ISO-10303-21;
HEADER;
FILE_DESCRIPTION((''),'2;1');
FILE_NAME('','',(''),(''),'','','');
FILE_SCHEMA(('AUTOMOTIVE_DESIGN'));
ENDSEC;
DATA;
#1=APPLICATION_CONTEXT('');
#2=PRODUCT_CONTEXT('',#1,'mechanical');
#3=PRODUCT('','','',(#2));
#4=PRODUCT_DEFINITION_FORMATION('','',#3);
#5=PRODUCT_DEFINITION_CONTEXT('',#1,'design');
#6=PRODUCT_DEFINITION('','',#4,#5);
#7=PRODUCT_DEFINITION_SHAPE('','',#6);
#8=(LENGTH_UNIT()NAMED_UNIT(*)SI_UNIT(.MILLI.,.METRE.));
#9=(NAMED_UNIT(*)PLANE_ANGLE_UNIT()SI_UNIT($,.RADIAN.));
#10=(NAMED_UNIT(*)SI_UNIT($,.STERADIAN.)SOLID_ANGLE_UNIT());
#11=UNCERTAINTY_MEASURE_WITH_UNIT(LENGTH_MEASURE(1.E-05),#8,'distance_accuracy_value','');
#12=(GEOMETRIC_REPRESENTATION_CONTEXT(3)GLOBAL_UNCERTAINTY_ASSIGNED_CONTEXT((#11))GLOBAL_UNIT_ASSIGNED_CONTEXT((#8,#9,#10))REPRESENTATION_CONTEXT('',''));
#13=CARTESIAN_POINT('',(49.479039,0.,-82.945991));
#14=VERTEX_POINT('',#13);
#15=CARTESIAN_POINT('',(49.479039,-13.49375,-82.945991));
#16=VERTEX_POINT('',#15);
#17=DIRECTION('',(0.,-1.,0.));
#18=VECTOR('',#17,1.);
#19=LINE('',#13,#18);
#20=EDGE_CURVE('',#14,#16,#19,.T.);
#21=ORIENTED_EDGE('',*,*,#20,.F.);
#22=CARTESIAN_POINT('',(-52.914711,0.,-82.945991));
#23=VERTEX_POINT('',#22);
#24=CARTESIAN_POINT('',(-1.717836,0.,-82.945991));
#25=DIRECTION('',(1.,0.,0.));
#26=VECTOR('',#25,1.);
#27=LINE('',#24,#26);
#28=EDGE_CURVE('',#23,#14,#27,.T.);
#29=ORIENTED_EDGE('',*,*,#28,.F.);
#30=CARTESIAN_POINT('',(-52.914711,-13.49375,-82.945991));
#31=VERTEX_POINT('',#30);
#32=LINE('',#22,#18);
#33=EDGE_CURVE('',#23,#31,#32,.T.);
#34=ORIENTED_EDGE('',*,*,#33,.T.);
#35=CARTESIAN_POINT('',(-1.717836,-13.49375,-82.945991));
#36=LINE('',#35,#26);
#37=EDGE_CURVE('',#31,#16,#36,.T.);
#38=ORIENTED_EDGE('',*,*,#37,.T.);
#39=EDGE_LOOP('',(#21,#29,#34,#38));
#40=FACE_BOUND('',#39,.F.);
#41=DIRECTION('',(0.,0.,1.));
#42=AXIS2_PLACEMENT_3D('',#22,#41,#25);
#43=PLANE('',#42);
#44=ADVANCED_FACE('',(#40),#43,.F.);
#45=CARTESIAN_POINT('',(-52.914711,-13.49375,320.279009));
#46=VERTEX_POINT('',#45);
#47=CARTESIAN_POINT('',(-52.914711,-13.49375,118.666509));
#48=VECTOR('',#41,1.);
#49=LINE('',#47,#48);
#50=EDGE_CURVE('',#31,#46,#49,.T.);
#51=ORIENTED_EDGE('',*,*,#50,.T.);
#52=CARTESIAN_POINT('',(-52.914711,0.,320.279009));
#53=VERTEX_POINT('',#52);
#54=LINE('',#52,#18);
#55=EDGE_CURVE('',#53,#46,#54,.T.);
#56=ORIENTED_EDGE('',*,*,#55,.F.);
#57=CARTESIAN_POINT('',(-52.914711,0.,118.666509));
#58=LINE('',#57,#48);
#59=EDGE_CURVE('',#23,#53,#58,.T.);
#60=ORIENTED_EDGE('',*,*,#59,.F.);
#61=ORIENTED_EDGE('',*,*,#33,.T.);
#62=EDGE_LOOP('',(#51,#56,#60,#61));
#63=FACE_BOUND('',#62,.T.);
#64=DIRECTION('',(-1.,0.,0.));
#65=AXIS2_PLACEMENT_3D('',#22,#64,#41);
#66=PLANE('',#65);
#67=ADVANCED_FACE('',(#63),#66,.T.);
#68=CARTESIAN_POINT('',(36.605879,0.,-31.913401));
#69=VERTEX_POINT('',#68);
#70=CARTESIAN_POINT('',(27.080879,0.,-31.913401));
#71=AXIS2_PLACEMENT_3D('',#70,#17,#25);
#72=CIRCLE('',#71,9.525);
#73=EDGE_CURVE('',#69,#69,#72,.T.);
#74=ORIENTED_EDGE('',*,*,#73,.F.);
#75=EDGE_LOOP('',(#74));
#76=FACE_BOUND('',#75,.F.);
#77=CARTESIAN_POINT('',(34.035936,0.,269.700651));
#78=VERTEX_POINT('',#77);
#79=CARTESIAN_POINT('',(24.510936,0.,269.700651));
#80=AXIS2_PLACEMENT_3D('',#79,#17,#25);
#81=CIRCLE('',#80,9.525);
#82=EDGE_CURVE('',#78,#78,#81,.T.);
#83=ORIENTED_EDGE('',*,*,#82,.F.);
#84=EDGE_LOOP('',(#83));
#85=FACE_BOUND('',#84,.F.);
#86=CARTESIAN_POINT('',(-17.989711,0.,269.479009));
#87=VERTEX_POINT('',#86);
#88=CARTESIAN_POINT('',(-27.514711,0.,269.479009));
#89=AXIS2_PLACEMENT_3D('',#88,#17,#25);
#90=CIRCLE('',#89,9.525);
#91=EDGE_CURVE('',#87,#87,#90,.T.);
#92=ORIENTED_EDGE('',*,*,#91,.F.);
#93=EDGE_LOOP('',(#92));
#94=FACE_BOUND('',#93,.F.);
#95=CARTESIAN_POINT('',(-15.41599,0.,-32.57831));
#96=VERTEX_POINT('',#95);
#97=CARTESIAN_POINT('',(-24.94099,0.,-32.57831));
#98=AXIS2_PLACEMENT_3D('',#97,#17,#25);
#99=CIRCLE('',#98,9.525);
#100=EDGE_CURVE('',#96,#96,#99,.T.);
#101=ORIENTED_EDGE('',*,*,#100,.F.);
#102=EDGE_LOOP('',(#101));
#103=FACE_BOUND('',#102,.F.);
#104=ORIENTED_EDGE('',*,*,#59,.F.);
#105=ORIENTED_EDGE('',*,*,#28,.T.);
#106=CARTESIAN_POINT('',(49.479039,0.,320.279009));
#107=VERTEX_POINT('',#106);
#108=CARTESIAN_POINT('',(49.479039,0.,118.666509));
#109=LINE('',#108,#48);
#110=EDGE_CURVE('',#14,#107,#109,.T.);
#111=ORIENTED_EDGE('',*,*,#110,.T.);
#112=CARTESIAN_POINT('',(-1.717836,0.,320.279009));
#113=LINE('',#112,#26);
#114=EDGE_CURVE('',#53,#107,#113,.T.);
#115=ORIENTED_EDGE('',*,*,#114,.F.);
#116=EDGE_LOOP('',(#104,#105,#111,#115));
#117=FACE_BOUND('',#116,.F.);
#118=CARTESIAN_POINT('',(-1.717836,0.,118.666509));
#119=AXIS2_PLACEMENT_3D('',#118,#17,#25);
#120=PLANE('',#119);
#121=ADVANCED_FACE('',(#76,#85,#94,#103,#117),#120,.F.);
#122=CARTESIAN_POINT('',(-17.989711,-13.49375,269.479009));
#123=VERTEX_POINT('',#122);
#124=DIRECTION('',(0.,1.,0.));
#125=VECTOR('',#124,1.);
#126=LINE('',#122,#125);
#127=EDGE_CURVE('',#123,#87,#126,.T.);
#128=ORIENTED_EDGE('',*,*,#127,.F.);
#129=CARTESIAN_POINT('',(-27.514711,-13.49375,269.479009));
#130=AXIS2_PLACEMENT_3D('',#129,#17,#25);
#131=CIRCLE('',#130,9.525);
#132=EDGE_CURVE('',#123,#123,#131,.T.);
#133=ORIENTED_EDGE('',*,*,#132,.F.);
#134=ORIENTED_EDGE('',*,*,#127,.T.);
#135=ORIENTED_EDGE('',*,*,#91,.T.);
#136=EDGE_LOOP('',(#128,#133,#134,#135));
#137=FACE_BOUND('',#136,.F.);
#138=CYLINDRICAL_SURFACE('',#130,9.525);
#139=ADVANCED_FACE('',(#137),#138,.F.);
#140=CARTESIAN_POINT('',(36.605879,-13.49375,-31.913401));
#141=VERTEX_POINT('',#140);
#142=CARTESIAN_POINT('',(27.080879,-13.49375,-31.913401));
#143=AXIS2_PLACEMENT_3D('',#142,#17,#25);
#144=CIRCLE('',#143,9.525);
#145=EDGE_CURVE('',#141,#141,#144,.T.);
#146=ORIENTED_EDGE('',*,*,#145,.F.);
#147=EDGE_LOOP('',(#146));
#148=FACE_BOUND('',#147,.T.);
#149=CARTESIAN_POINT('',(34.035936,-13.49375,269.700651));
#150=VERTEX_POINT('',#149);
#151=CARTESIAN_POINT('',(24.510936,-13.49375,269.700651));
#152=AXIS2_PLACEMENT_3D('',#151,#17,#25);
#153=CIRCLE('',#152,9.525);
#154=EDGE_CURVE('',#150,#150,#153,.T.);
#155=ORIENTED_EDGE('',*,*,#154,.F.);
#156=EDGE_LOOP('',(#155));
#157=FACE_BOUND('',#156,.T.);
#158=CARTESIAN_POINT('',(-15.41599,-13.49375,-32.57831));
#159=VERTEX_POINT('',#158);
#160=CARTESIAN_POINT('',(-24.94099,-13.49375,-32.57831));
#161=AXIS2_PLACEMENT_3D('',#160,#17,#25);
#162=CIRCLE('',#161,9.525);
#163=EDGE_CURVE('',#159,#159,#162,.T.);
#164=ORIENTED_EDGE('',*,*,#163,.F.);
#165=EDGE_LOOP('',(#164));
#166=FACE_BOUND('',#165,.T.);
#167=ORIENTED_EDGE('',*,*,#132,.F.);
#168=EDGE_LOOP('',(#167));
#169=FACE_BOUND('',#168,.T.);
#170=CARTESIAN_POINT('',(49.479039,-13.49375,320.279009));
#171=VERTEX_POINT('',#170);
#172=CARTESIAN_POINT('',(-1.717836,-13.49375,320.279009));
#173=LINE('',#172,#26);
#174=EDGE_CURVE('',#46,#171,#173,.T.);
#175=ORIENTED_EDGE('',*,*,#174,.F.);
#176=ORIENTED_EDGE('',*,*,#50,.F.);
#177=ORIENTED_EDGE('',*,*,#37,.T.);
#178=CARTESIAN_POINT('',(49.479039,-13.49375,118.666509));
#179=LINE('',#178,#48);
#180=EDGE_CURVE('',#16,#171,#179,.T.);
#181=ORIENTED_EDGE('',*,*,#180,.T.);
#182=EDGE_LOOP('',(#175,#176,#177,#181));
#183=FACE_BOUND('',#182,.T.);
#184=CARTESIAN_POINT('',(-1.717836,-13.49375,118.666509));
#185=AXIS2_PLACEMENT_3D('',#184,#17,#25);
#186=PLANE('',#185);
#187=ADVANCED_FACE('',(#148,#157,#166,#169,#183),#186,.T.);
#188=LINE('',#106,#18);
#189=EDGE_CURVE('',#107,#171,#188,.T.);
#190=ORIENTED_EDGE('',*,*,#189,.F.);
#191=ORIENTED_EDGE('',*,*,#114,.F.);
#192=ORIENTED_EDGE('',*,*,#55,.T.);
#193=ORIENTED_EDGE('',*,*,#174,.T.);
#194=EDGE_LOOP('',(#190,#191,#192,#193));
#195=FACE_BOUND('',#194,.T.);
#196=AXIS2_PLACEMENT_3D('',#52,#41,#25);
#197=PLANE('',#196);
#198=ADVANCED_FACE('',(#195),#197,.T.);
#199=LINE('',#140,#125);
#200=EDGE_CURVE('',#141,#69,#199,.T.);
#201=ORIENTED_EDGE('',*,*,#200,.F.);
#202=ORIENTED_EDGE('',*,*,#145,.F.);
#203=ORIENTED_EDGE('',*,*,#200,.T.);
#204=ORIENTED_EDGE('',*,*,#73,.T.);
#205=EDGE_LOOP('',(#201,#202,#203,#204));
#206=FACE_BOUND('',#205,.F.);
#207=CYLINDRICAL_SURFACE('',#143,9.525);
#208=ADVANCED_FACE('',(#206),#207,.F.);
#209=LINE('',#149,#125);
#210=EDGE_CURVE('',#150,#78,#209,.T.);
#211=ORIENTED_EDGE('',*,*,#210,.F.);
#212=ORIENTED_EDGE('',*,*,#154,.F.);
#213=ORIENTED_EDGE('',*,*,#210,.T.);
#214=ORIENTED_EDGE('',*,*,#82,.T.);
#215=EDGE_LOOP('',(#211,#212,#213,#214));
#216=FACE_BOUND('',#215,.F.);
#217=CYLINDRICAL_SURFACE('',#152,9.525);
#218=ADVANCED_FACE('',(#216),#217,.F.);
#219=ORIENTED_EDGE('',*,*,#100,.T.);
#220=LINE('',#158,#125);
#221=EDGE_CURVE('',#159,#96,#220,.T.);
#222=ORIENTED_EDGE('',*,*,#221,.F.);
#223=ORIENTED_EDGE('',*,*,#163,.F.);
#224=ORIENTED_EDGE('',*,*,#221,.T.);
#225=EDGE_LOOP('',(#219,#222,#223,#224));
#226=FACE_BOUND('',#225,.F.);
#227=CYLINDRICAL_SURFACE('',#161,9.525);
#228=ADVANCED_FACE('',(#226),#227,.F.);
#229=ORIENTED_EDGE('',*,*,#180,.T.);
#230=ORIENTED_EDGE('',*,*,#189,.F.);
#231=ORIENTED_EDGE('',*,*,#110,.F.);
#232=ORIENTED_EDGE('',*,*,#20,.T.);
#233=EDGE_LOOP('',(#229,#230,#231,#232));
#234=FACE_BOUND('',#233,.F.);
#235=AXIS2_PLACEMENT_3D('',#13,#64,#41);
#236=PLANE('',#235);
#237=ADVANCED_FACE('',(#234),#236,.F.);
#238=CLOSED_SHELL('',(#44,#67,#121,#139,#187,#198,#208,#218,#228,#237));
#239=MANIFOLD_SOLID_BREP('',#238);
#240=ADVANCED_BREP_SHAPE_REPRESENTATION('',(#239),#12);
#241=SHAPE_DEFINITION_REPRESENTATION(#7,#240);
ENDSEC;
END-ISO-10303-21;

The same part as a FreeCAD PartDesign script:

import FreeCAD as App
import Part
import Sketcher
from FreeCAD import Vector
Q = App.Units.Quantity


def add_polygon(sketch, points):
    """Adds a closed chain of lines whose ends are joined by coincident constraints."""
    first, n = sketch.GeometryCount, len(points)
    for a, b in zip(points, points[1:] + points[:1]):
        sketch.addGeometry(Part.LineSegment(App.Vector(*a, 0), App.Vector(*b, 0)), False)
    for i in range(n):
        sketch.addConstraint(Sketcher.Constraint("Coincident", first + i, 2, first + (i + 1) % n, 1))

doc = App.newDocument("Part")
body = doc.addObject("PartDesign::Body", "Body")

# Sketch on XZ plane
sketch1 = body.newObject("Sketcher::SketchObject", "Sketch")
sketch1.AttachmentSupport = (doc.getObject("XZ_Plane"), [""])
sketch1.MapMode = "FlatFace"
add_polygon(sketch1, [(-53, 320), (-53, -83), (49, -83), (49, 320)])  # lines 0-3
sketch1.addConstraint([
    Sketcher.Constraint("Vertical", 0),
    Sketcher.Constraint("Horizontal", 1),
    Sketcher.Constraint("Vertical", 2),
    Sketcher.Constraint("Horizontal", 3),
    Sketcher.Constraint("DistanceX", 1, 1, 1, 2, Q("4.03125 in")),
    Sketcher.Constraint("DistanceY", 0, 2, 0, 1, Q("15.875 in")),
    Sketcher.Constraint("DistanceX", 0, 2, -1, 1, 52.914711),
    Sketcher.Constraint("DistanceY", 0, 2, -1, 1, 82.945991),
])
pad1 = body.newObject("PartDesign::Pad", "Pad")
pad1.Profile = sketch1
pad1.Length = Q("0.53125 in")

# Sketch on XZ plane
sketch2 = body.newObject("Sketcher::SketchObject", "Sketch001")
sketch2.AttachmentSupport = (doc.getObject("XZ_Plane"), [""])
sketch2.MapMode = "FlatFace"
sketch2.AttachmentOffset = App.Placement(Vector(0, 0, 0.53125 * 25.4), App.Rotation())
sketch2.addGeometry([
    Part.Circle(Vector(-28, 269, 0), Vector(0, 0, 1), 10),
    Part.Circle(Vector(25, 270, 0), Vector(0, 0, 1), 10),
    Part.Circle(Vector(-25, -33, 0), Vector(0, 0, 1), 10),
    Part.Circle(Vector(27, -32, 0), Vector(0, 0, 1), 10),
], False)
sketch2.addConstraint([
    Sketcher.Constraint("Equal", 0, 1),
    Sketcher.Constraint("Equal", 1, 2),
    Sketcher.Constraint("Equal", 2, 3),
    Sketcher.Constraint("Diameter", 0, Q("0.75 in")),
    Sketcher.Constraint("DistanceY", 3, 3, -1, 1, 31.913401),
    Sketcher.Constraint("DistanceX", 0, 3, -1, 1, 27.514711),
    Sketcher.Constraint("DistanceY", -1, 1, 0, 3, 269.479009),
    Sketcher.Constraint("DistanceY", -1, 1, 1, 3, 269.700651),
    Sketcher.Constraint("DistanceX", 2, 3, -1, 1, 24.94099),
    Sketcher.Constraint("DistanceY", 2, 3, -1, 1, 32.57831),
    Sketcher.Constraint("DistanceX", -1, 1, 3, 3, 27.080879),
    Sketcher.Constraint("DistanceX", -1, 1, 1, 3, 24.510936),
])
pocket1 = body.newObject("PartDesign::Pocket", "Pocket")
pocket1.Profile = sketch2
pocket1.Type = "ThroughAll"

doc.recompute()
